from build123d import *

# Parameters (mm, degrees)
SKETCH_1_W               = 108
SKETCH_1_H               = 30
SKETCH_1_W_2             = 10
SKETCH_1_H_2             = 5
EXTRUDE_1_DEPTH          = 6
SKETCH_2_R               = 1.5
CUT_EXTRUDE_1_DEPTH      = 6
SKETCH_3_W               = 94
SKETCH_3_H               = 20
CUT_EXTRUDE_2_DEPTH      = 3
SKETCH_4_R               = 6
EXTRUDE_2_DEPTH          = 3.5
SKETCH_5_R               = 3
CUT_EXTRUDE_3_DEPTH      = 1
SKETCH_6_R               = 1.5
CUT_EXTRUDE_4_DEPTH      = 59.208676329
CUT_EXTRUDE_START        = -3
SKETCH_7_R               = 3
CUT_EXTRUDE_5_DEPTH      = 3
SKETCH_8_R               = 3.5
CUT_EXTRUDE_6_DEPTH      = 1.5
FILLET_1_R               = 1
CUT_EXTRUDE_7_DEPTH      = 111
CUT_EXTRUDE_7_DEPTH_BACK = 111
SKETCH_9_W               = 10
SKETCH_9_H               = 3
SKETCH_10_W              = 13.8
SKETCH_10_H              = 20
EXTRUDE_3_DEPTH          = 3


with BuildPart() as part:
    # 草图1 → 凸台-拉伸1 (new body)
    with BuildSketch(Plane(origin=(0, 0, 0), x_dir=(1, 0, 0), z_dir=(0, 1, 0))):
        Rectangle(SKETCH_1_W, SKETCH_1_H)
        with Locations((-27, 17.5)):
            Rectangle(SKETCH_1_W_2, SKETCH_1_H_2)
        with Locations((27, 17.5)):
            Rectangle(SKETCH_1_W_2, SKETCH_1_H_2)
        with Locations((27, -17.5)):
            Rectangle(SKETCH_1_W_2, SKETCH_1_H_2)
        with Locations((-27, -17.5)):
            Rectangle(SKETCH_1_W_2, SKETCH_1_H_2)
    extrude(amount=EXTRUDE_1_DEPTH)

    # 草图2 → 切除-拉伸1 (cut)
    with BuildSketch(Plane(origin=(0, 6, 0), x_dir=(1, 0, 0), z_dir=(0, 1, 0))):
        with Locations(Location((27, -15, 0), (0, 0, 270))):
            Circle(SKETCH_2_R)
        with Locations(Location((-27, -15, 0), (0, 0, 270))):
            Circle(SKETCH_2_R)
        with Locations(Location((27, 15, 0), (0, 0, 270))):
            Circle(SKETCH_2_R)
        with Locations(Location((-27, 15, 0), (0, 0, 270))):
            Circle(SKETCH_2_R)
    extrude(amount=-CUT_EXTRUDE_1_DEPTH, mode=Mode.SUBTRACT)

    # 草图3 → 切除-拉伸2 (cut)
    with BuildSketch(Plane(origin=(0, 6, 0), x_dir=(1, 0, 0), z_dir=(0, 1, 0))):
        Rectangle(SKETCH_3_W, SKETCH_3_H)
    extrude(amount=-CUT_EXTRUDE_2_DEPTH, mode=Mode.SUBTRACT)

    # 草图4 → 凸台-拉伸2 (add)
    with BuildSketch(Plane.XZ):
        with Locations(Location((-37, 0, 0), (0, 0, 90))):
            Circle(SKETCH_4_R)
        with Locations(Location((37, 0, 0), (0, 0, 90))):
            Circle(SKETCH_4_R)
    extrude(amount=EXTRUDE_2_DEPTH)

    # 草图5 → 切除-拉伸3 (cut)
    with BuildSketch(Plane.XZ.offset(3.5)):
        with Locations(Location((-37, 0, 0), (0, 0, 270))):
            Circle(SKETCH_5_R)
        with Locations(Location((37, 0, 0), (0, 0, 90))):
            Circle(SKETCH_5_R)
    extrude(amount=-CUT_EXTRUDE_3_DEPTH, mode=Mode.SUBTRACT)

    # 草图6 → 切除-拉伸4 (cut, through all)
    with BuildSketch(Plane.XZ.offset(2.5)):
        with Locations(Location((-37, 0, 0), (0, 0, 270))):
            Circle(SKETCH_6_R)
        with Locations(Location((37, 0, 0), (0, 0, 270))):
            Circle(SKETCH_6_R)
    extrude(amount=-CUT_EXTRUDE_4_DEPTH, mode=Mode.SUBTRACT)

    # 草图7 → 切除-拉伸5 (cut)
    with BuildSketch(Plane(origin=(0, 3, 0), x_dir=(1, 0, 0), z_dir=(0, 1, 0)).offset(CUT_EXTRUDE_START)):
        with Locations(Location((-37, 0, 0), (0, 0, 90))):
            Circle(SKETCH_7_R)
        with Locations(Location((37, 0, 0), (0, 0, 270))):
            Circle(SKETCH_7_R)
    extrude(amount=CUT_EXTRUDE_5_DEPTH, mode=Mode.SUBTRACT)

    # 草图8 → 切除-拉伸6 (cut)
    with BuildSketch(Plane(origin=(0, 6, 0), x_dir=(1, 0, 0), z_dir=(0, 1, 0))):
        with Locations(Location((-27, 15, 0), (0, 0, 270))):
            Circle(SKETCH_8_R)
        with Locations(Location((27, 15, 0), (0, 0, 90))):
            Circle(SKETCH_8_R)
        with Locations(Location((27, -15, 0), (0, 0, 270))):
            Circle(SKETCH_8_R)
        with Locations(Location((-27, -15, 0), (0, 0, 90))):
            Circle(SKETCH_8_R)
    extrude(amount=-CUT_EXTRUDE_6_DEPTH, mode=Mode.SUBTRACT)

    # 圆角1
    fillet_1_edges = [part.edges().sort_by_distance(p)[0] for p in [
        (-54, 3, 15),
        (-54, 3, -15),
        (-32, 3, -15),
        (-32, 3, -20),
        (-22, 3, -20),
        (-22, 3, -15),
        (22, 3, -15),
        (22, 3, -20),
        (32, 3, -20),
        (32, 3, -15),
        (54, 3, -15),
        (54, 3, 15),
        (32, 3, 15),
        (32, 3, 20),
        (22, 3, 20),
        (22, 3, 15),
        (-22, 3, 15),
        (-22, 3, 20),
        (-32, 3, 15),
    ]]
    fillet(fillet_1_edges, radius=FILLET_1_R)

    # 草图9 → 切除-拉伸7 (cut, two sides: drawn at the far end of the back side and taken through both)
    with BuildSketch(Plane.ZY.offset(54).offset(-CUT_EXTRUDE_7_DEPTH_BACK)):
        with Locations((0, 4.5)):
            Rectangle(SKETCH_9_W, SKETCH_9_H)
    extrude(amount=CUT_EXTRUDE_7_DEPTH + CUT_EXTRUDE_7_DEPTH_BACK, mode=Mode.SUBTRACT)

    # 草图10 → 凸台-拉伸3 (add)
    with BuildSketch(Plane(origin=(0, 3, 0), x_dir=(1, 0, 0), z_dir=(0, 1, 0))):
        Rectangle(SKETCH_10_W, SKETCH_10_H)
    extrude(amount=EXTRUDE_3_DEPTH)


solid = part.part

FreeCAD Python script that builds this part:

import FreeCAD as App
import Part
import Sketcher


def edges_at(feature, points):
    """Names of the edges that pass closest to the given points."""
    edges = feature.Shape.Edges
    near = lambda p: min(range(len(edges)), key=lambda i: edges[i].distToShape(Part.Vertex(*p))[0])
    return sorted({f"Edge{near(p) + 1}" for p in points})

doc = App.newDocument("Part")
body = doc.addObject("PartDesign::Body", "Body")

# Sketch on XZ plane
sketch1 = body.newObject("Sketcher::SketchObject", "Sketch")
sketch1.AttachmentSupport = (doc.getObject("XZ_Plane"), [""])
sketch1.MapMode = "FlatFace"
sketch1.addGeometry([
    Part.LineSegment(App.Vector(-54, -15, 0), App.Vector(-54, 15, 0)),  # 0
    Part.LineSegment(App.Vector(-54, 15, 0), App.Vector(-32, 15, 0)),  # 1
    Part.LineSegment(App.Vector(-32, 15, 0), App.Vector(-32, 20, 0)),  # 2
    Part.LineSegment(App.Vector(-32, 20, 0), App.Vector(-22, 20, 0)),  # 3
    Part.LineSegment(App.Vector(-22, 20, 0), App.Vector(-22, 15, 0)),  # 4
    Part.LineSegment(App.Vector(-22, 15, 0), App.Vector(22, 15, 0)),  # 5
    Part.LineSegment(App.Vector(22, 15, 0), App.Vector(22, 20, 0)),  # 6
    Part.LineSegment(App.Vector(22, 20, 0), App.Vector(32, 20, 0)),  # 7
    Part.LineSegment(App.Vector(32, 20, 0), App.Vector(32, 15, 0)),  # 8
    Part.LineSegment(App.Vector(32, 15, 0), App.Vector(54, 15, 0)),  # 9
    Part.LineSegment(App.Vector(54, 15, 0), App.Vector(54, -15, 0)),  # 10
    Part.LineSegment(App.Vector(54, -15, 0), App.Vector(32, -15, 0)),  # 11
    Part.LineSegment(App.Vector(32, -15, 0), App.Vector(32, -20, 0)),  # 12
    Part.LineSegment(App.Vector(32, -20, 0), App.Vector(22, -20, 0)),  # 13
    Part.LineSegment(App.Vector(22, -20, 0), App.Vector(22, -15, 0)),  # 14
    Part.LineSegment(App.Vector(22, -15, 0), App.Vector(-22, -15, 0)),  # 15
    Part.LineSegment(App.Vector(-22, -15, 0), App.Vector(-22, -20, 0)),  # 16
    Part.LineSegment(App.Vector(-22, -20, 0), App.Vector(-32, -20, 0)),  # 17
    Part.LineSegment(App.Vector(-32, -20, 0), App.Vector(-32, -15, 0)),  # 18
    Part.LineSegment(App.Vector(-32, -15, 0), App.Vector(-54, -15, 0)),  # 19
], False)
sketch1.addConstraint([
    Sketcher.Constraint("Coincident", 0, 2, 1, 1),
    Sketcher.Constraint("Coincident", 1, 2, 2, 1),
    Sketcher.Constraint("Coincident", 2, 2, 3, 1),
    Sketcher.Constraint("Coincident", 3, 2, 4, 1),
    Sketcher.Constraint("Coincident", 4, 2, 5, 1),
    Sketcher.Constraint("Coincident", 5, 2, 6, 1),
    Sketcher.Constraint("Coincident", 6, 2, 7, 1),
    Sketcher.Constraint("Coincident", 7, 2, 8, 1),
    Sketcher.Constraint("Coincident", 8, 2, 9, 1),
    Sketcher.Constraint("Coincident", 9, 2, 10, 1),
    Sketcher.Constraint("Coincident", 10, 2, 11, 1),
    Sketcher.Constraint("Coincident", 11, 2, 12, 1),
    Sketcher.Constraint("Coincident", 12, 2, 13, 1),
    Sketcher.Constraint("Coincident", 13, 2, 14, 1),
    Sketcher.Constraint("Coincident", 14, 2, 15, 1),
    Sketcher.Constraint("Coincident", 15, 2, 16, 1),
    Sketcher.Constraint("Coincident", 16, 2, 17, 1),
    Sketcher.Constraint("Coincident", 17, 2, 18, 1),
    Sketcher.Constraint("Coincident", 18, 2, 19, 1),
    Sketcher.Constraint("Coincident", 19, 2, 0, 1),
    Sketcher.Constraint("Vertical", 0),
    Sketcher.Constraint("Horizontal", 1),
    Sketcher.Constraint("Vertical", 2),
    Sketcher.Constraint("Horizontal", 3),
    Sketcher.Constraint("Vertical", 4),
    Sketcher.Constraint("Horizontal", 5),
    Sketcher.Constraint("Vertical", 6),
    Sketcher.Constraint("Horizontal", 7),
    Sketcher.Constraint("Vertical", 8),
    Sketcher.Constraint("Horizontal", 9),
    Sketcher.Constraint("Vertical", 10),
    Sketcher.Constraint("Horizontal", 11),
    Sketcher.Constraint("Vertical", 12),
    Sketcher.Constraint("Horizontal", 13),
    Sketcher.Constraint("Vertical", 14),
    Sketcher.Constraint("Horizontal", 15),
    Sketcher.Constraint("Vertical", 16),
    Sketcher.Constraint("Horizontal", 17),
    Sketcher.Constraint("Vertical", 18),
    Sketcher.Constraint("Horizontal", 19),
    Sketcher.Constraint("Symmetric", 0, 2, 10, 2, -1, 1),
    Sketcher.Constraint("Symmetric", 2, 2, 12, 2, -1, 1),
    Sketcher.Constraint("Symmetric", 4, 2, 14, 2, -1, 1),
    Sketcher.Constraint("Symmetric", 6, 2, 16, 2, -1, 1),
    Sketcher.Constraint("Symmetric", 8, 2, 18, 2, -1, 1),
    Sketcher.Constraint("Symmetric", 3, 2, 6, 2, -2),
    Sketcher.Constraint("Symmetric", 1, 2, 8, 2, -2),
    Sketcher.Constraint("Horizontal", 1, 2, 4, 2),
    Sketcher.Constraint("DistanceX", 1, 1, 1, 2, 22.0),
    Sketcher.Constraint("DistanceX", 3, 1, 3, 2, 10.0),
    Sketcher.Constraint("DistanceX", 5, 1, 5, 2, 44.0),
    Sketcher.Constraint("DistanceY", 0, 1, 0, 2, 30.0),
    Sketcher.Constraint("DistanceY", 2, 1, 2, 2, 5.0),
])
pad1 = body.newObject("PartDesign::Pad", "Pad")
pad1.Profile = sketch1
pad1.Length = 6
pad1.Reversed = True

# Sketch on XZ plane
sketch2 = body.newObject("Sketcher::SketchObject", "Sketch001")
sketch2.AttachmentSupport = (doc.getObject("XZ_Plane"), [""])
sketch2.MapMode = "FlatFace"
sketch2.AttachmentOffset = App.Placement(App.Vector(0, 0, -6), App.Rotation())
sketch2.addGeometry([
    Part.Circle(App.Vector(27, 15, 0), App.Vector(0, 0, 1), 1.5),
    Part.Circle(App.Vector(-27, 15, 0), App.Vector(0, 0, 1), 1.5),
    Part.Circle(App.Vector(27, -15, 0), App.Vector(0, 0, 1), 1.5),
    Part.Circle(App.Vector(-27, -15, 0), App.Vector(0, 0, 1), 1.5),
], False)
sketch2.addConstraint([
    Sketcher.Constraint("Equal", 0, 1),
    Sketcher.Constraint("Equal", 1, 2),
    Sketcher.Constraint("Equal", 2, 3),
    Sketcher.Constraint("Symmetric", 1, 3, 2, 3, -1, 1),
    Sketcher.Constraint("Symmetric", 0, 3, 3, 3, -1, 1),
    Sketcher.Constraint("Symmetric", 0, 3, 1, 3, -2),
    Sketcher.Constraint("Diameter", 0, 3.0),
    Sketcher.Constraint("DistanceX", -1, 1, 0, 3, 27.0),
    Sketcher.Constraint("DistanceY", -1, 1, 0, 3, 15.0),
])
pocket1 = body.newObject("PartDesign::Pocket", "Pocket")
pocket1.Profile = sketch2
pocket1.Length = 6
pocket1.Reversed = True

# Sketch on XZ plane
sketch3 = body.newObject("Sketcher::SketchObject", "Sketch002")
sketch3.AttachmentSupport = (doc.getObject("XZ_Plane"), [""])
sketch3.MapMode = "FlatFace"
sketch3.AttachmentOffset = App.Placement(App.Vector(0, 0, -6), App.Rotation())
sketch3.addGeometry([
    Part.LineSegment(App.Vector(-47, -10, 0), App.Vector(-47, 10, 0)),
    Part.LineSegment(App.Vector(-47, 10, 0), App.Vector(47, 10, 0)),
    Part.LineSegment(App.Vector(47, 10, 0), App.Vector(47, -10, 0)),
    Part.LineSegment(App.Vector(47, -10, 0), App.Vector(-47, -10, 0)),
], False)
sketch3.addConstraint([
    Sketcher.Constraint("Coincident", 0, 2, 1, 1),
    Sketcher.Constraint("Coincident", 1, 2, 2, 1),
    Sketcher.Constraint("Coincident", 2, 2, 3, 1),
    Sketcher.Constraint("Coincident", 3, 2, 0, 1),
    Sketcher.Constraint("Vertical", 0),
    Sketcher.Constraint("Horizontal", 1),
    Sketcher.Constraint("Vertical", 2),
    Sketcher.Constraint("Horizontal", 3),
    Sketcher.Constraint("Symmetric", 0, 2, 2, 2, -1, 1),
    Sketcher.Constraint("DistanceX", 1, 1, 1, 2, 94.0),
    Sketcher.Constraint("DistanceY", 0, 1, 0, 2, 20.0),
])
pocket2 = body.newObject("PartDesign::Pocket", "Pocket001")
pocket2.Profile = sketch3
pocket2.Length = 3
pocket2.Reversed = True

# Sketch on XZ plane
sketch4 = body.newObject("Sketcher::SketchObject", "Sketch003")
sketch4.AttachmentSupport = (doc.getObject("XZ_Plane"), [""])
sketch4.MapMode = "FlatFace"
sketch4.addGeometry([
    Part.Circle(App.Vector(-37, 0, 0), App.Vector(0, 0, 1), 6),
    Part.Circle(App.Vector(37, 0, 0), App.Vector(0, 0, 1), 6),
], False)
sketch4.addConstraint([
    Sketcher.Constraint("Equal", 0, 1),
    Sketcher.Constraint("Symmetric", 0, 3, 1, 3, -1, 1),
    Sketcher.Constraint("PointOnObject", 0, 3, -1),
    Sketcher.Constraint("Diameter", 0, 12.0),
    Sketcher.Constraint("DistanceX", 0, 3, -1, 1, 37.0),
])
pad2 = body.newObject("PartDesign::Pad", "Pad001")
pad2.Profile = sketch4
pad2.Length = 3.5

# Sketch on XZ plane
sketch5 = body.newObject("Sketcher::SketchObject", "Sketch004")
sketch5.AttachmentSupport = (doc.getObject("XZ_Plane"), [""])
sketch5.MapMode = "FlatFace"
sketch5.AttachmentOffset = App.Placement(App.Vector(0, 0, 3.5), App.Rotation())
sketch5.addGeometry([
    Part.Circle(App.Vector(-37, 0, 0), App.Vector(0, 0, 1), 3),
    Part.Circle(App.Vector(37, 0, 0), App.Vector(0, 0, 1), 3),
], False)
sketch5.addConstraint([
    Sketcher.Constraint("Equal", 0, 1),
    Sketcher.Constraint("Symmetric", 0, 3, 1, 3, -1, 1),
    Sketcher.Constraint("PointOnObject", 0, 3, -1),
    Sketcher.Constraint("Diameter", 0, 6.0),
    Sketcher.Constraint("DistanceX", 0, 3, -1, 1, 37.0),
])
pocket3 = body.newObject("PartDesign::Pocket", "Pocket002")
pocket3.Profile = sketch5
pocket3.Length = 1

# Sketch on XZ plane
sketch6 = body.newObject("Sketcher::SketchObject", "Sketch005")
sketch6.AttachmentSupport = (doc.getObject("XZ_Plane"), [""])
sketch6.MapMode = "FlatFace"
sketch6.AttachmentOffset = App.Placement(App.Vector(0, 0, 2.5), App.Rotation())
sketch6.addGeometry([
    Part.Circle(App.Vector(-37, 0, 0), App.Vector(0, 0, 1), 1.5),
    Part.Circle(App.Vector(37, 0, 0), App.Vector(0, 0, 1), 1.5),
], False)
sketch6.addConstraint([
    Sketcher.Constraint("Equal", 0, 1),
    Sketcher.Constraint("Symmetric", 0, 3, 1, 3, -1, 1),
    Sketcher.Constraint("PointOnObject", 0, 3, -1),
    Sketcher.Constraint("Diameter", 0, 3.0),
    Sketcher.Constraint("DistanceX", 0, 3, -1, 1, 37.0),
])
pocket4 = body.newObject("PartDesign::Pocket", "Pocket003")
pocket4.Profile = sketch6
pocket4.Type = "ThroughAll"

# Sketch on XZ plane
sketch7 = body.newObject("Sketcher::SketchObject", "Sketch006")
sketch7.AttachmentSupport = (doc.getObject("XZ_Plane"), [""])
sketch7.MapMode = "FlatFace"
sketch7.addGeometry([
    Part.Circle(App.Vector(-37, 0, 0), App.Vector(0, 0, 1), 3),
    Part.Circle(App.Vector(37, 0, 0), App.Vector(0, 0, 1), 3),
], False)
sketch7.addConstraint([
    Sketcher.Constraint("Equal", 0, 1),
    Sketcher.Constraint("Symmetric", 0, 3, 1, 3, -1, 1),
    Sketcher.Constraint("PointOnObject", 0, 3, -1),
    Sketcher.Constraint("Diameter", 0, 6.0),
    Sketcher.Constraint("DistanceX", 0, 3, -1, 1, 37.0),
])
pocket5 = body.newObject("PartDesign::Pocket", "Pocket004")
pocket5.Profile = sketch7
pocket5.Length = 3

# Sketch on XZ plane
sketch8 = body.newObject("Sketcher::SketchObject", "Sketch007")
sketch8.AttachmentSupport = (doc.getObject("XZ_Plane"), [""])
sketch8.MapMode = "FlatFace"
sketch8.AttachmentOffset = App.Placement(App.Vector(0, 0, -6), App.Rotation())
sketch8.addGeometry([
    Part.Circle(App.Vector(-27, -15, 0), App.Vector(0, 0, 1), 3.5),
    Part.Circle(App.Vector(27, -15, 0), App.Vector(0, 0, 1), 3.5),
    Part.Circle(App.Vector(27, 15, 0), App.Vector(0, 0, 1), 3.5),
    Part.Circle(App.Vector(-27, 15, 0), App.Vector(0, 0, 1), 3.5),
], False)
sketch8.addConstraint([
    Sketcher.Constraint("Equal", 0, 1),
    Sketcher.Constraint("Equal", 1, 2),
    Sketcher.Constraint("Equal", 2, 3),
    Sketcher.Constraint("Symmetric", 0, 3, 2, 3, -1, 1),
    Sketcher.Constraint("Symmetric", 1, 3, 3, 3, -1, 1),
    Sketcher.Constraint("Symmetric", 0, 3, 1, 3, -2),
    Sketcher.Constraint("Diameter", 0, 7.0),
    Sketcher.Constraint("DistanceX", 0, 3, -1, 1, 27.0),
    Sketcher.Constraint("DistanceY", 0, 3, -1, 1, 15.0),
])
pocket6 = body.newObject("PartDesign::Pocket", "Pocket005")
pocket6.Profile = sketch8
pocket6.Length = 1.5
pocket6.Reversed = True
doc.recompute()

fillet = body.newObject("PartDesign::Fillet", "Fillet")
fillet.Base = (pocket6, edges_at(pocket6, [
    (-54, 3, 15),
    (-54, 3, -15),
    (-32, 3, -15),
    (-32, 3, -20),
    (-22, 3, -20),
    (-22, 3, -15),
    (22, 3, -15),
    (22, 3, -20),
    (32, 3, -20),
    (32, 3, -15),
    (54, 3, -15),
    (54, 3, 15),
    (32, 3, 15),
    (32, 3, 20),
    (22, 3, 20),
    (22, 3, 15),
    (-22, 3, 15),
    (-22, 3, 20),
    (-32, 3, 15),
]))
fillet.Radius = 1

# Sketch on YZ plane
sketch9 = body.newObject("Sketcher::SketchObject", "Sketch008")
sketch9.AttachmentSupport = (doc.getObject("YZ_Plane"), [""])
sketch9.MapMode = "FlatFace"
sketch9.AttachmentOffset = App.Placement(App.Vector(0, 0, -54), App.Rotation())
sketch9.addGeometry([
    Part.LineSegment(App.Vector(6, -5, 0), App.Vector(3, -5, 0)),
    Part.LineSegment(App.Vector(3, -5, 0), App.Vector(3, 5, 0)),
    Part.LineSegment(App.Vector(3, 5, 0), App.Vector(6, 5, 0)),
    Part.LineSegment(App.Vector(6, 5, 0), App.Vector(6, -5, 0)),
], False)
sketch9.addConstraint([
    Sketcher.Constraint("Coincident", 0, 2, 1, 1),
    Sketcher.Constraint("Coincident", 1, 2, 2, 1),
    Sketcher.Constraint("Coincident", 2, 2, 3, 1),
    Sketcher.Constraint("Coincident", 3, 2, 0, 1),
    Sketcher.Constraint("Horizontal", 0),
    Sketcher.Constraint("Vertical", 1),
    Sketcher.Constraint("Horizontal", 2),
    Sketcher.Constraint("Vertical", 3),
    Sketcher.Constraint("DistanceX", 0, 2, 0, 1, 3.0),
    Sketcher.Constraint("DistanceY", 1, 1, 1, 2, 10.0),
    Sketcher.Constraint("DistanceX", -1, 1, 0, 2, 3.0),
    Sketcher.Constraint("DistanceY", 0, 2, -1, 1, 5.0),
])
pocket7 = body.newObject("PartDesign::Pocket", "Pocket006")
pocket7.Profile = sketch9
pocket7.Type = "ThroughAll"
pocket7.Midplane = True

# Sketch on XZ plane
sketch10 = body.newObject("Sketcher::SketchObject", "Sketch009")
sketch10.AttachmentSupport = (doc.getObject("XZ_Plane"), [""])
sketch10.MapMode = "FlatFace"
sketch10.AttachmentOffset = App.Placement(App.Vector(0, 0, -3), App.Rotation())
sketch10.addGeometry([
    Part.LineSegment(App.Vector(-7, -10, 0), App.Vector(-7, 10, 0)),
    Part.LineSegment(App.Vector(-7, 10, 0), App.Vector(7, 10, 0)),
    Part.LineSegment(App.Vector(7, 10, 0), App.Vector(7, -10, 0)),
    Part.LineSegment(App.Vector(7, -10, 0), App.Vector(-7, -10, 0)),
], False)
sketch10.addConstraint([
    Sketcher.Constraint("Coincident", 0, 2, 1, 1),
    Sketcher.Constraint("Coincident", 1, 2, 2, 1),
    Sketcher.Constraint("Coincident", 2, 2, 3, 1),
    Sketcher.Constraint("Coincident", 3, 2, 0, 1),
    Sketcher.Constraint("Vertical", 0),
    Sketcher.Constraint("Horizontal", 1),
    Sketcher.Constraint("Vertical", 2),
    Sketcher.Constraint("Horizontal", 3),
    Sketcher.Constraint("Symmetric", 0, 2, 2, 2, -1, 1),
    Sketcher.Constraint("DistanceY", 0, 1, 0, 2, 20.0),
    Sketcher.Constraint("DistanceX", 1, 1, 1, 2, 13.8),
])
pad3 = body.newObject("PartDesign::Pad", "Pad002")
pad3.Profile = sketch10
pad3.Length = 3
pad3.Reversed = True

doc.recompute()
